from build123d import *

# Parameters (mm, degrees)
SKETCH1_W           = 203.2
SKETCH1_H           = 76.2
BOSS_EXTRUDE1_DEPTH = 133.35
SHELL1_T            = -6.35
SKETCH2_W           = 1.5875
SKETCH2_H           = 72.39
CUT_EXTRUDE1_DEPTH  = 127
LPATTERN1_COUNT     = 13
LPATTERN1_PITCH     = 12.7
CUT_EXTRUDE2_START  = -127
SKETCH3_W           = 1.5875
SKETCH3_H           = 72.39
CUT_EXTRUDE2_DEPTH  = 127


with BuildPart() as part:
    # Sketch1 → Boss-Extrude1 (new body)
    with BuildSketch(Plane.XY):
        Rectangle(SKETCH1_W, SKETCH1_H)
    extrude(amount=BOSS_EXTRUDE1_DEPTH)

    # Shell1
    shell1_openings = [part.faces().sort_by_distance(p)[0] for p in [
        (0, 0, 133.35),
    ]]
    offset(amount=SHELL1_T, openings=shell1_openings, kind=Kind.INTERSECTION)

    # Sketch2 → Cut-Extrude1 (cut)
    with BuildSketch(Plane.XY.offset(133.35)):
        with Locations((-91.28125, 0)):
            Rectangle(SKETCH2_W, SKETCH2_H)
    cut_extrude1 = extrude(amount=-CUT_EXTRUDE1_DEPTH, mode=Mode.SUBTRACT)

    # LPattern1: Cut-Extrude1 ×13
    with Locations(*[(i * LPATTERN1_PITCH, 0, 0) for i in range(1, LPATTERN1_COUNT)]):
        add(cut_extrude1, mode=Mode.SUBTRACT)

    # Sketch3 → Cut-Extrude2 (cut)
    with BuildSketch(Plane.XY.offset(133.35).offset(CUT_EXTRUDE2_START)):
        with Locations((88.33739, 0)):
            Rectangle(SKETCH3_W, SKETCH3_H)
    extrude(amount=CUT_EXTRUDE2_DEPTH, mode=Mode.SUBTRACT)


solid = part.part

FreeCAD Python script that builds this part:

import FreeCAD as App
import Part
import Sketcher
from FreeCAD import Vector
Q = App.Units.Quantity


def faces_at(feature, points):
    """Names of the faces that lie closest to the given points."""
    faces = feature.Shape.Faces
    near = lambda p: min(range(len(faces)), key=lambda i: faces[i].distToShape(Part.Vertex(*p))[0])
    return sorted({f"Face{near(p) + 1}" for p in points})


def add_polygon(sketch, points):
    """Adds a closed chain of lines whose ends are joined by coincident constraints."""
    first, n = sketch.GeometryCount, len(points)
    for a, b in zip(points, points[1:] + points[:1]):
        sketch.addGeometry(Part.LineSegment(App.Vector(*a, 0), App.Vector(*b, 0)), False)
    for i in range(n):
        sketch.addConstraint(Sketcher.Constraint("Coincident", first + i, 2, first + (i + 1) % n, 1))

doc = App.newDocument("Part")
body = doc.addObject("PartDesign::Body", "Body")

sketch1 = doc.addObject("Sketcher::SketchObject", "Sketch")
body.addObject(sketch1)
sketch1.AttachmentSupport = (doc.XY_Plane, [""])
sketch1.MapMode = "FlatFace"
add_polygon(sketch1, [(-102, 38), (-102, -38), (102, -38), (102, 38)])
sketch1.addConstraint([
    Sketcher.Constraint("Vertical", 0),
    Sketcher.Constraint("Horizontal", 1),
    Sketcher.Constraint("Vertical", 2),
    Sketcher.Constraint("Horizontal", 3),
    Sketcher.Constraint("Symmetric", 0, 2, 2, 2, -1, 1),
    Sketcher.Constraint("DistanceX", 1, 1, 1, 2, Q("8 in")),
    Sketcher.Constraint("DistanceY", 0, 2, 0, 1, Q("3 in")),
])
pad1 = doc.addObject("PartDesign::Pad", "Pad")
body.addObject(pad1)
pad1.Profile = sketch1
pad1.Length = Q("5.25 in")
doc.recompute()

thickness = doc.addObject("PartDesign::Thickness", "Thickness")
body.addObject(thickness)
thickness.Base = (pad1, faces_at(pad1, [(0, 0, 133.35)]))
thickness.Value = Q("0.25 in")
thickness.Reversed = True
thickness.Join = "Intersection"

sketch2 = doc.addObject("Sketcher::SketchObject", "Sketch001")
body.addObject(sketch2)
sketch2.AttachmentSupport = (doc.XY_Plane, [""])
sketch2.MapMode = "FlatFace"
sketch2.AttachmentOffset = App.Placement(Vector(0, 0, 5.25 * 25.4), App.Rotation())
add_polygon(sketch2, [(-92.1, 36.2), (-92.1, -36.2), (-90.5, -36.2), (-90.5, 36.2)])
sketch2.addConstraint([
    Sketcher.Constraint("Vertical", 0),
    Sketcher.Constraint("Horizontal", 1),
    Sketcher.Constraint("Vertical", 2),
    Sketcher.Constraint("Horizontal", 3),
    Sketcher.Constraint("DistanceY", 0, 2, 0, 1, Q("2.85 in")),
    Sketcher.Constraint("DistanceX", 1, 1, 1, 2, Q("0.0625 in")),
    Sketcher.Constraint("DistanceX", 0, 2, -1, 1, Q("3.625 in")),
    Sketcher.Constraint("DistanceY", 0, 2, -1, 1, Q("1.425 in")),
])
pocket1 = doc.addObject("PartDesign::Pocket", "Pocket")
body.addObject(pocket1)
pocket1.Profile = sketch2
pocket1.Length = Q("5 in")
doc.recompute()

linearpattern = doc.addObject("PartDesign::LinearPattern", "LinearPattern")
body.addObject(linearpattern)
linearpattern.Originals = [pocket1]
linearpattern.Direction = (doc.X_Axis, [""])
linearpattern.Mode = "offset"
linearpattern.Offset = Q("0.5 in")
linearpattern.Occurrences = 13
body.Tip = linearpattern

sketch3 = doc.addObject("Sketcher::SketchObject", "Sketch002")
body.addObject(sketch3)
sketch3.AttachmentSupport = (doc.XY_Plane, [""])
sketch3.MapMode = "FlatFace"
sketch3.AttachmentOffset = App.Placement(Vector(0, 0, 0.25 * 25.4), App.Rotation())
add_polygon(sketch3, [(87.5, 36.2), (87.5, -36.2), (89.1, -36.2), (89.1, 36.2)])
sketch3.addConstraint([
    Sketcher.Constraint("Vertical", 0),
    Sketcher.Constraint("Horizontal", 1),
    Sketcher.Constraint("Vertical", 2),
    Sketcher.Constraint("Horizontal", 3),
    Sketcher.Constraint("DistanceY", 0, 2, 0, 1, Q("2.85 in")),
    Sketcher.Constraint("DistanceX", 1, 1, 1, 2, Q("0.0625 in")),
    Sketcher.Constraint("DistanceY", 0, 2, -1, 1, Q("1.425 in")),
    Sketcher.Constraint("DistanceX", -1, 1, 0, 2, Q("3.4466 in")),
])
pocket2 = doc.addObject("PartDesign::Pocket", "Pocket001")
body.addObject(pocket2)
pocket2.Profile = sketch3
pocket2.Length = Q("5 in")
pocket2.Reversed = True

doc.recompute()
